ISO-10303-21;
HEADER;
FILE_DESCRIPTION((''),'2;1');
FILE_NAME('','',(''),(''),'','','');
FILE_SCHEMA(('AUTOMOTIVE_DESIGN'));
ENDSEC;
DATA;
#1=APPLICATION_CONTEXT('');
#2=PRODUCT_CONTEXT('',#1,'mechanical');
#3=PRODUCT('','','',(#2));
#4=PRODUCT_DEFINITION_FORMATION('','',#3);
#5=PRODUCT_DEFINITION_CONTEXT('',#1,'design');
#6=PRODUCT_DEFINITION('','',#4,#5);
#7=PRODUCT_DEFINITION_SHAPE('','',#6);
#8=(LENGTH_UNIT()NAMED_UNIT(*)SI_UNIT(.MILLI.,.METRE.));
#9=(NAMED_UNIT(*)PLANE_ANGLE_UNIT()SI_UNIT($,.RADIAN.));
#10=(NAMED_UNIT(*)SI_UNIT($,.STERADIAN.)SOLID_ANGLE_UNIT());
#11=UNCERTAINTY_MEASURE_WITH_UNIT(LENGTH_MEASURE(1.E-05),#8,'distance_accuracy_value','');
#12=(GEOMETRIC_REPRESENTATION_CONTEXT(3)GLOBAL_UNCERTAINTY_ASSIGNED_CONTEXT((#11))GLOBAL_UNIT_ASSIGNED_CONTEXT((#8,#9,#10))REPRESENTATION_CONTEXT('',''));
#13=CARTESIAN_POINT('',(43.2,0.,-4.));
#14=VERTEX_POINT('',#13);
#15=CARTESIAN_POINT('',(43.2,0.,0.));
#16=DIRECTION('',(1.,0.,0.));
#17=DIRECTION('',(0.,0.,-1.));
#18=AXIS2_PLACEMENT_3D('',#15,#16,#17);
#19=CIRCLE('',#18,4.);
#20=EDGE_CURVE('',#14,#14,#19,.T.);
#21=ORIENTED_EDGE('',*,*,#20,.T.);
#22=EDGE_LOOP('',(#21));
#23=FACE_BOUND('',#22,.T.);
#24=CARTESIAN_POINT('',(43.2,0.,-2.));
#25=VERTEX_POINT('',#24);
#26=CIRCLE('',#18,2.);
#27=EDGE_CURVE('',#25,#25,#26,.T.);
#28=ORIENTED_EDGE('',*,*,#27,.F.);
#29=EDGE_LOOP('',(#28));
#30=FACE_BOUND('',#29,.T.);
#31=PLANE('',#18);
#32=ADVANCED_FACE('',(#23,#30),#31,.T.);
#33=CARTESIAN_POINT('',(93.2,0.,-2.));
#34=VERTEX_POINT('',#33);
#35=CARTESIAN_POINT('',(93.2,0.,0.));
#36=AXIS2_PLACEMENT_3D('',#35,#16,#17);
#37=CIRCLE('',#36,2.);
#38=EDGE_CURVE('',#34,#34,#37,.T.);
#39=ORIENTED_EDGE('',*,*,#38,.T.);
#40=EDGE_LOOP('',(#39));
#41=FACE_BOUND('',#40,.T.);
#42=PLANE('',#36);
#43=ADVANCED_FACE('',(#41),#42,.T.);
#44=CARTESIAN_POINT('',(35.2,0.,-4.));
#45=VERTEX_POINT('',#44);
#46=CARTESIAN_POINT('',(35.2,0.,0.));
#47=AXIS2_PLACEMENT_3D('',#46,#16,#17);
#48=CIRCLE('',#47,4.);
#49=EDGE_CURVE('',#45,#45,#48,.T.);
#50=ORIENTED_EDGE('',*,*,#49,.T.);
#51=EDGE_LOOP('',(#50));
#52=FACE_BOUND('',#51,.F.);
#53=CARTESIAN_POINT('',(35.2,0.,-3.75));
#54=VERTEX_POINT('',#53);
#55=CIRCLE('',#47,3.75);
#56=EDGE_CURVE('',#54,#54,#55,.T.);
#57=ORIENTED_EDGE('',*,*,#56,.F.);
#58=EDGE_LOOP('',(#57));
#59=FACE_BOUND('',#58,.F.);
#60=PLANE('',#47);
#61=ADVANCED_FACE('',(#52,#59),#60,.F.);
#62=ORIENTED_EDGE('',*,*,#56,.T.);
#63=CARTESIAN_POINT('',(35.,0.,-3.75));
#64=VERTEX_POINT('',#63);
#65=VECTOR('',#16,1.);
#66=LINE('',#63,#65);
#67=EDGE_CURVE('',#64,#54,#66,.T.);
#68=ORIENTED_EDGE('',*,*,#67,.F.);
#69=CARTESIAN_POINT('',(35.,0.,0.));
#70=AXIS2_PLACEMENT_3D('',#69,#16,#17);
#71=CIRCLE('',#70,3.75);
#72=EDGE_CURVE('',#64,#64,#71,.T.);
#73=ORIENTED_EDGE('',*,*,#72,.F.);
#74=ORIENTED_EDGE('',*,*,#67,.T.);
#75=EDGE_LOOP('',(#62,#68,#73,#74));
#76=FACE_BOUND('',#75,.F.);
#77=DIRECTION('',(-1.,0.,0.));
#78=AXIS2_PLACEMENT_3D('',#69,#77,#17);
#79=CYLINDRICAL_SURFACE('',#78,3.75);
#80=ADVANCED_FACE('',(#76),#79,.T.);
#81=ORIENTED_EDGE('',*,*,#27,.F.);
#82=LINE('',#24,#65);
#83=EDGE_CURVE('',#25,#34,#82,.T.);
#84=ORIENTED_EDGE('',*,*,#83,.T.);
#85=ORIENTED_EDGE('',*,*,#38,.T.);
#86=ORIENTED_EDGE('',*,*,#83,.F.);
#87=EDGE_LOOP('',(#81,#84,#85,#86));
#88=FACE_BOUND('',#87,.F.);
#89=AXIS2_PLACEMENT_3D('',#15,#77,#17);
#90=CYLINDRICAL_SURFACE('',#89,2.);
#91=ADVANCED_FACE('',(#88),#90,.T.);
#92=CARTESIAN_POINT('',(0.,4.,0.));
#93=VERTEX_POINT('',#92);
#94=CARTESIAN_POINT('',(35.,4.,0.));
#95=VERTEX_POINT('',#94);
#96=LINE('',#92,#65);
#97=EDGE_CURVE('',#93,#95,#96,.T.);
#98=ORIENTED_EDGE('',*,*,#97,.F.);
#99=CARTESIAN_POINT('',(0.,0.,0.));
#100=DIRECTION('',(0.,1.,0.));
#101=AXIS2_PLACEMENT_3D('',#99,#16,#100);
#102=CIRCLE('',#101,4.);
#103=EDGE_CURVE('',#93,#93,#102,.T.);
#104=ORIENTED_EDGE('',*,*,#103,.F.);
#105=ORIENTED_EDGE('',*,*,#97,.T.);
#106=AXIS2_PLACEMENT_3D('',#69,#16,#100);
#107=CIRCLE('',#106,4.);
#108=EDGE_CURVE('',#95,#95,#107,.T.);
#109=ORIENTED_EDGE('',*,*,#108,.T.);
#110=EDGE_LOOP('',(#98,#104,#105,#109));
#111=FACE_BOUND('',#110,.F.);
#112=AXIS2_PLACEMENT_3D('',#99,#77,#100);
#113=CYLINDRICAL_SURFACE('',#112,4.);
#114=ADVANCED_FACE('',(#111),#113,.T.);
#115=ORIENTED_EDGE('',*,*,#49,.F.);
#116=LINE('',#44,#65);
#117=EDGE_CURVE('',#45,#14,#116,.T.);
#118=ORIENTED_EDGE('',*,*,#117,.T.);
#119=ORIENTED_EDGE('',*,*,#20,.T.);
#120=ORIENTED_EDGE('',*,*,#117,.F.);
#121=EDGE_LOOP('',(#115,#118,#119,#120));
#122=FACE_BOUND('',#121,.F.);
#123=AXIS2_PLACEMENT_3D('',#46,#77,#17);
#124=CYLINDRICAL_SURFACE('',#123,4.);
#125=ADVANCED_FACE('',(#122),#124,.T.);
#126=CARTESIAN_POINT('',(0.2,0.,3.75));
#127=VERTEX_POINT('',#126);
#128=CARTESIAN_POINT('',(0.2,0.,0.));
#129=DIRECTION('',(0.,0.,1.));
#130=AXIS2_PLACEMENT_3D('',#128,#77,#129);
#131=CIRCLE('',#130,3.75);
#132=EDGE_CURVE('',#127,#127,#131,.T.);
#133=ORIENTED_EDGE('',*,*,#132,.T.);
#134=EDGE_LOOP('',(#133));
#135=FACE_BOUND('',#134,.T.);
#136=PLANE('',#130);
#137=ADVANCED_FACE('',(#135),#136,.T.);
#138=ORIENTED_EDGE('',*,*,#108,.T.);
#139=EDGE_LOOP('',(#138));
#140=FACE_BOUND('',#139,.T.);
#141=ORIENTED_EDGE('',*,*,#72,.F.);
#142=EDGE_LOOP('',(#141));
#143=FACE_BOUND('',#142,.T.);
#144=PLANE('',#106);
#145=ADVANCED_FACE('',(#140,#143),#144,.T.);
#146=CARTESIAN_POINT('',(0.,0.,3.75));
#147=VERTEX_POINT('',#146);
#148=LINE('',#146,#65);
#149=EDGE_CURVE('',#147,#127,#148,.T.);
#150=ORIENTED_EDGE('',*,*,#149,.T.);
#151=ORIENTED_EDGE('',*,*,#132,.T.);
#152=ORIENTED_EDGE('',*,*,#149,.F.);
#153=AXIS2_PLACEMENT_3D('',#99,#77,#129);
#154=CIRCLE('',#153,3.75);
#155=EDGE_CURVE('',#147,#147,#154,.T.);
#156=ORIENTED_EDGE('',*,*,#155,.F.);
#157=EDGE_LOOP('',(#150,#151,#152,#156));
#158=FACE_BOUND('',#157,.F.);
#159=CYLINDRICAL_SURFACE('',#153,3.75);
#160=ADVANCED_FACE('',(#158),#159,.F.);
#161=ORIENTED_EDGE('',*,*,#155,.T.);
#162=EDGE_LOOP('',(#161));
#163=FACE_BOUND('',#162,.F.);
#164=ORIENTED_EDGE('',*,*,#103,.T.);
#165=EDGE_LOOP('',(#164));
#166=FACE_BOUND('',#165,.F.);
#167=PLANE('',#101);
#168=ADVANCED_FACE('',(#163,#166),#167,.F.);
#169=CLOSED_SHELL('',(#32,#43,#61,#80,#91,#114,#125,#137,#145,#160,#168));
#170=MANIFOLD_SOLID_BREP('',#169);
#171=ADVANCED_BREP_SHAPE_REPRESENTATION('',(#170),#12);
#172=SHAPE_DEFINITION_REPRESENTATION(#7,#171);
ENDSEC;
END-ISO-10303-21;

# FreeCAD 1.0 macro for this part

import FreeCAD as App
import Part
import Sketcher
Q = App.Units.Quantity

doc = App.newDocument("Part")
body = doc.addObject("PartDesign::Body", "Body")

# Sketch on YZ plane
sketch1 = body.newObject("Sketcher::SketchObject", "Sketch")
sketch1.AttachmentSupport = (doc.getObject("YZ_Plane"), [""])
sketch1.MapMode = "FlatFace"
sketch1.addGeometry(Part.Circle(App.Vector(0, 0, 0), App.Vector(0, 0, 1), 4), False)
sketch1.addConstraint([
    Sketcher.Constraint("Coincident", 0, 3, -1, 1),
    Sketcher.Constraint("Diameter", 0, Q("8 mm")),
])
pad1 = body.newObject("PartDesign::Pad", "Pad")
pad1.Profile = sketch1
pad1.Length = 35

# Sketch on YZ plane
sketch2 = body.newObject("Sketcher::SketchObject", "Sketch001")
sketch2.AttachmentSupport = (doc.getObject("YZ_Plane"), [""])
sketch2.MapMode = "FlatFace"
sketch2.addGeometry(Part.Circle(App.Vector(0, 0, 0), App.Vector(0, 0, 1), 3.8), False)
sketch2.addConstraint([
    Sketcher.Constraint("Coincident", 0, 3, -1, 1),
    Sketcher.Constraint("Diameter", 0, Q("7.5 mm")),
])
pocket1 = body.newObject("PartDesign::Pocket", "Pocket")
pocket1.Profile = sketch2
pocket1.Length = 0.2
pocket1.Reversed = True

# Sketch on YZ plane
sketch3 = body.newObject("Sketcher::SketchObject", "Sketch002")
sketch3.AttachmentSupport = (doc.getObject("YZ_Plane"), [""])
sketch3.MapMode = "FlatFace"
sketch3.AttachmentOffset = App.Placement(App.Vector(0, 0, 35), App.Rotation())
sketch3.addGeometry(Part.Circle(App.Vector(0, 0, 0), App.Vector(0, 0, 1), 3.8), False)
sketch3.addConstraint([
    Sketcher.Constraint("Coincident", 0, 3, -1, 1),
    Sketcher.Constraint("Diameter", 0, Q("7.5 mm")),
])
pad2 = body.newObject("PartDesign::Pad", "Pad001")
pad2.Profile = sketch3
pad2.Length = 0.2

# Sketch on YZ plane
sketch4 = body.newObject("Sketcher::SketchObject", "Sketch003")
sketch4.AttachmentSupport = (doc.getObject("YZ_Plane"), [""])
sketch4.MapMode = "FlatFace"
sketch4.AttachmentOffset = App.Placement(App.Vector(0, 0, 35.2), App.Rotation())
sketch4.addGeometry(Part.Circle(App.Vector(0, 0, 0), App.Vector(0, 0, 1), 4), False)
sketch4.addConstraint([
    Sketcher.Constraint("Coincident", 0, 3, -1, 1),
    Sketcher.Constraint("Diameter", 0, Q("8 mm")),
])
pad3 = body.newObject("PartDesign::Pad", "Pad002")
pad3.Profile = sketch4
pad3.Length = 8

# Sketch on YZ plane
sketch5 = body.newObject("Sketcher::SketchObject", "Sketch004")
sketch5.AttachmentSupport = (doc.getObject("YZ_Plane"), [""])
sketch5.MapMode = "FlatFace"
sketch5.AttachmentOffset = App.Placement(App.Vector(0, 0, 43.2), App.Rotation())
sketch5.addGeometry(Part.Circle(App.Vector(0, 0, 0), App.Vector(0, 0, 1), 2), False)
sketch5.addConstraint([
    Sketcher.Constraint("Coincident", 0, 3, -1, 1),
    Sketcher.Constraint("Diameter", 0, Q("4 mm")),
])
pad4 = body.newObject("PartDesign::Pad", "Pad003")
pad4.Profile = sketch5
pad4.Length = 50

doc.recompute()
